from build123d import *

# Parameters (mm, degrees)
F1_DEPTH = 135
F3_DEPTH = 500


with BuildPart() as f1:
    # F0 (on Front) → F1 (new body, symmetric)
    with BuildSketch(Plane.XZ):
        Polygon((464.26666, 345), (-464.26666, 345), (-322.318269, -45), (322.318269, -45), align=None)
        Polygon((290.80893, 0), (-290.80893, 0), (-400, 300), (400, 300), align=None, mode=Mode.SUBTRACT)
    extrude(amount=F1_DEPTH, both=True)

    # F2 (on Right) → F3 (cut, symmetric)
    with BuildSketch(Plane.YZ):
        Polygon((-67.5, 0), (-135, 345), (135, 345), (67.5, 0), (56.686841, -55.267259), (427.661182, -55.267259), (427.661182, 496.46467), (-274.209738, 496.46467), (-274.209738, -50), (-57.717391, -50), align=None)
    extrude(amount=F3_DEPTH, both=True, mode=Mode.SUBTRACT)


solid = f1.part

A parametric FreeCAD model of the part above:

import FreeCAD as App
import Part
import Sketcher

V = App.Vector
Q = App.Units.Quantity

doc = App.newDocument("Part")
body = doc.addObject("PartDesign::Body", "Body")

sketch1 = body.newObject("Sketcher::SketchObject", "Sketch")
sketch1.AttachmentSupport = (doc.getObject("XZ_Plane"), [""])
sketch1.MapMode = "FlatFace"
sketch1.addGeometry([
    Part.LineSegment(V(464, 345, 0), V(-464, 345, 0)),
    Part.LineSegment(V(-464, 345, 0), V(-322, -45, 0)),
    Part.LineSegment(V(-322, -45, 0), V(322, -45, 0)),
    Part.LineSegment(V(322, -45, 0), V(464, 345, 0)),
    Part.LineSegment(V(400, 300, 0), V(291, 0, 0)),
    Part.LineSegment(V(291, 0, 0), V(-291, 0, 0)),
    Part.LineSegment(V(-291, 0, 0), V(-400, 300, 0)),
    Part.LineSegment(V(-400, 300, 0), V(400, 300, 0)),
], False)
sketch1.addConstraint([
    Sketcher.Constraint("Coincident", 0, 2, 1, 1),
    Sketcher.Constraint("Coincident", 1, 2, 2, 1),
    Sketcher.Constraint("Coincident", 2, 2, 3, 1),
    Sketcher.Constraint("Coincident", 3, 2, 0, 1),
    Sketcher.Constraint("Coincident", 4, 2, 5, 1),
    Sketcher.Constraint("Coincident", 5, 2, 6, 1),
    Sketcher.Constraint("Coincident", 6, 2, 7, 1),
    Sketcher.Constraint("Coincident", 7, 2, 4, 1),
    Sketcher.Constraint("Horizontal", 0),
    Sketcher.Constraint("Horizontal", 2),
    Sketcher.Constraint("Horizontal", 5),
    Sketcher.Constraint("Horizontal", 7),
    Sketcher.Constraint("Symmetric", 4, 2, 5, 2, -1, 1),
    Sketcher.Constraint("Parallel", 3, 4),
    Sketcher.Constraint("Parallel", 1, 6),
    Sketcher.Constraint("Equal", 1, 3),
    Sketcher.Constraint("DistanceX", 7, 1, 7, 2, 800.0),
    Sketcher.Constraint("Angle", 1, Q("-70 deg")),
    Sketcher.Constraint("DistanceY", -1, 1, 0, 2, 345.0),
    Sketcher.Constraint("DistanceY", 1, 2, -1, 1, 45.0),
    Sketcher.Constraint("DistanceY", -1, 1, 6, 2, 300.0),
    Sketcher.Constraint("DistanceX", 0, 2, 0, 1, 928.53332),
    Sketcher.Constraint("DistanceX", 1, 2, 4, 2, 613.127199),
])
pad1 = body.newObject("PartDesign::Pad", "Pad")
pad1.Profile = sketch1
pad1.Length = 270
pad1.Midplane = True

sketch2 = body.newObject("Sketcher::SketchObject", "Sketch001")
sketch2.AttachmentSupport = (doc.getObject("YZ_Plane"), [""])
sketch2.MapMode = "FlatFace"
sketch2.addGeometry([
    Part.LineSegment(V(-68, 0, 0), V(-135, 345, 0)),
    Part.LineSegment(V(-135, 345, 0), V(135, 345, 0)),
    Part.LineSegment(V(135, 345, 0), V(68, 0, 0)),
    Part.LineSegment(V(68, 0, 0), V(57, -55, 0)),
    Part.LineSegment(V(57, -55, 0), V(428, -55, 0)),
    Part.LineSegment(V(428, -55, 0), V(428, 496, 0)),
    Part.LineSegment(V(428, 496, 0), V(-274, 496, 0)),
    Part.LineSegment(V(-274, 496, 0), V(-274, -50, 0)),
    Part.LineSegment(V(-274, -50, 0), V(-58, -50, 0)),
    Part.LineSegment(V(-58, -50, 0), V(-68, 0, 0)),
], False)
sketch2.addConstraint([
    Sketcher.Constraint("Coincident", 0, 2, 1, 1),
    Sketcher.Constraint("Coincident", 1, 2, 2, 1),
    Sketcher.Constraint("Coincident", 2, 2, 3, 1),
    Sketcher.Constraint("Coincident", 3, 2, 4, 1),
    Sketcher.Constraint("Coincident", 4, 2, 5, 1),
    Sketcher.Constraint("Coincident", 5, 2, 6, 1),
    Sketcher.Constraint("Coincident", 6, 2, 7, 1),
    Sketcher.Constraint("Coincident", 7, 2, 8, 1),
    Sketcher.Constraint("Coincident", 8, 2, 9, 1),
    Sketcher.Constraint("Coincident", 9, 2, 0, 1),
    Sketcher.Constraint("Horizontal", 1),
    Sketcher.Constraint("Horizontal", 4),
    Sketcher.Constraint("Vertical", 5),
    Sketcher.Constraint("Horizontal", 6),
    Sketcher.Constraint("Vertical", 7),
    Sketcher.Constraint("Horizontal", 8),
    Sketcher.Constraint("Symmetric", 2, 2, 9, 2, -1, 1),
    Sketcher.Constraint("PointOnObject", 2, 2, -1),
    Sketcher.Constraint("Parallel", 2, 3),
    Sketcher.Constraint("Parallel", 0, 9),
    Sketcher.Constraint("Equal", 0, 2),
    Sketcher.Constraint("DistanceX", 1, 1, 1, 2, 270.0),
    Sketcher.Constraint("DistanceY", -1, 1, 0, 2, 345.0),
    Sketcher.Constraint("DistanceY", 7, 2, -1, 1, 50.0),
    Sketcher.Constraint("DistanceX", 9, 2, 2, 2, 135.0),
    Sketcher.Constraint("DistanceX", 4, 1, 4, 2, 370.974341),
    Sketcher.Constraint("DistanceX", 6, 2, 6, 1, 701.87092),
    Sketcher.Constraint("DistanceY", 5, 1, 5, 2, 551.731929),
    Sketcher.Constraint("DistanceY", 7, 2, 7, 1, 546.46467),
])
pocket1 = body.newObject("PartDesign::Pocket", "Pocket")
pocket1.Profile = sketch2
pocket1.Length = 1000
pocket1.Midplane = True

doc.recompute()
